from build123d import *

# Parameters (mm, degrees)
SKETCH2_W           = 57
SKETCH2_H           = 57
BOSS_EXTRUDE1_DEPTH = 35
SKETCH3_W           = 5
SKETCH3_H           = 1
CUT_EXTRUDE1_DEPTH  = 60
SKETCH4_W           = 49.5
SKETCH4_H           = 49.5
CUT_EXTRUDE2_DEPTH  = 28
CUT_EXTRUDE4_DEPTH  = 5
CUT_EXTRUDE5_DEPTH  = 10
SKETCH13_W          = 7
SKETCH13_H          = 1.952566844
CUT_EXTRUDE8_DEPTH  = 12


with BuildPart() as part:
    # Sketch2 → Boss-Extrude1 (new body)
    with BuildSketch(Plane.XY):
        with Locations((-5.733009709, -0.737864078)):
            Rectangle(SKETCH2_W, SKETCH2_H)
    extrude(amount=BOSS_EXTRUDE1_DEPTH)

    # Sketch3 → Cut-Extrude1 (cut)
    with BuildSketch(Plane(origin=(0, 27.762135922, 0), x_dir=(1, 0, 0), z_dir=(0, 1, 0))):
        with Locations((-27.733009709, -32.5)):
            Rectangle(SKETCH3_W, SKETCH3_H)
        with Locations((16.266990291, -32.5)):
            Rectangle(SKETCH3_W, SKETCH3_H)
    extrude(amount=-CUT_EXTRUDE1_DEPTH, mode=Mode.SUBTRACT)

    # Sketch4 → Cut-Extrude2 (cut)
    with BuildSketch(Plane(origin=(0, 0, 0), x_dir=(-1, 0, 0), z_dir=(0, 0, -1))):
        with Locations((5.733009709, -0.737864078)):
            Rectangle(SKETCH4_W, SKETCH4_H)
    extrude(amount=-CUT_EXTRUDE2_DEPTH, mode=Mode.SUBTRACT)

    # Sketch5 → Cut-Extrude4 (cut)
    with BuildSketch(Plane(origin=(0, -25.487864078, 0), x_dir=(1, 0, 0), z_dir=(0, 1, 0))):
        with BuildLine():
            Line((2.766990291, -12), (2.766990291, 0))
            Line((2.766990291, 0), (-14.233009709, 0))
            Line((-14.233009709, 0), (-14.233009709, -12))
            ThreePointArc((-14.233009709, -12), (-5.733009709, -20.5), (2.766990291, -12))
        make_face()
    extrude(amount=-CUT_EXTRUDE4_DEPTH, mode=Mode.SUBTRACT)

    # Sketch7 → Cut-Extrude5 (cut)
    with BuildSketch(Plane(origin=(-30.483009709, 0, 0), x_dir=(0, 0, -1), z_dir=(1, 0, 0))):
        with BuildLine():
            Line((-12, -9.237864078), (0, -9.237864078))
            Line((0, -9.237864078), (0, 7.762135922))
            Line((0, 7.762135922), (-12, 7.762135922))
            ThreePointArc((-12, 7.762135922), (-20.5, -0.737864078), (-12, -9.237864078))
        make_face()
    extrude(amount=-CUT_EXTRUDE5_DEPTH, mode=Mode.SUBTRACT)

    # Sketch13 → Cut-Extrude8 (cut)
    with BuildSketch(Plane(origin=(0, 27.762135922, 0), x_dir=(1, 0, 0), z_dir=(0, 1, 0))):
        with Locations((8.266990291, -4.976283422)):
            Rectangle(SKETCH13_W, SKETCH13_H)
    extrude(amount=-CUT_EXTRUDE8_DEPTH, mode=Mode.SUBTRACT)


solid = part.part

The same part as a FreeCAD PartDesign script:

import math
import FreeCAD as App
import Part
import Sketcher


def add_polygon(sketch, points):
    """Adds a closed chain of lines whose ends are joined by coincident constraints."""
    first, n = sketch.GeometryCount, len(points)
    for a, b in zip(points, points[1:] + points[:1]):
        sketch.addGeometry(Part.LineSegment(App.Vector(*a, 0), App.Vector(*b, 0)), False)
    for i in range(n):
        sketch.addConstraint(Sketcher.Constraint("Coincident", first + i, 2, first + (i + 1) % n, 1))

doc = App.newDocument("Part")
params = doc.addObject("Spreadsheet::Sheet", "Params")
for row, (alias, value) in enumerate([
    ("sketch1_width", "57 mm"),
    ("pad1_length", "35 mm"),
    ("sketch2_width", "5 mm"),
    ("sketch2_height", "1 mm"),
    ("pocket1_length", "60 mm"),
    ("sketch3_width", "49.5 mm"),
    ("pocket2_length", "28 mm"),
    ("sketch4_radius", "8.5 mm"),
    ("sketch4_height", "12 mm"),
    ("pocket3_length", "5 mm"),
    ("sketch5_radius", "8.5 mm"),
    ("sketch5_height", "12 mm"),
    ("pocket4_length", "10 mm"),
    ("sketch6_width", "7 mm"),
    ("pocket5_length", "12 mm"),
], start=1):
    params.set(f"A{row}", alias)
    params.set(f"B{row}", "=" + value)
    params.setAlias(f"B{row}", alias)

body = doc.addObject("PartDesign::Body", "Body")

# Sketch on XY plane
sketch1 = body.newObject("Sketcher::SketchObject", "Sketch")
sketch1.AttachmentSupport = (doc.getObject("XY_Plane"), [""])
sketch1.MapMode = "FlatFace"
add_polygon(sketch1, [(-34, 28), (-34, -29), (23, -29), (23, 28)])  # lines 0-3
sketch1.addConstraint([
    Sketcher.Constraint("Vertical", 0),
    Sketcher.Constraint("Horizontal", 1),
    Sketcher.Constraint("Vertical", 2),
    Sketcher.Constraint("Horizontal", 3),
    Sketcher.Constraint("Equal", 3, 0),
    Sketcher.Constraint("DistanceX", 1, 1, 1, 2, 57.0),
    Sketcher.Constraint("DistanceX", 0, 2, -1, 1, 34.23301),
    Sketcher.Constraint("DistanceY", 0, 2, -1, 1, 29.237864),
])
sketch1.setExpression("Constraints[9]", "Params.sketch1_width")
pad1 = body.newObject("PartDesign::Pad", "Pad")
pad1.Profile = sketch1
pad1.setExpression("Length", "Params.pad1_length")

# Sketch on XZ plane
sketch2 = body.newObject("Sketcher::SketchObject", "Sketch001")
sketch2.AttachmentSupport = (doc.getObject("XZ_Plane"), [""])
sketch2.MapMode = "FlatFace"
sketch2.AttachmentOffset = App.Placement(App.Vector(0, 0, -27.762136), App.Rotation())
add_polygon(sketch2, [(-30.2, 32), (-30.2, 33), (-25.2, 33), (-25.2, 32)])  # lines 0-3
add_polygon(sketch2, [(13.8, 32), (13.8, 33), (18.8, 33), (18.8, 32)])  # lines 4-7
sketch2.addConstraint([
    Sketcher.Constraint("Vertical", 0),
    Sketcher.Constraint("Horizontal", 1),
    Sketcher.Constraint("Vertical", 2),
    Sketcher.Constraint("Horizontal", 3),
    Sketcher.Constraint("Vertical", 4),
    Sketcher.Constraint("Horizontal", 5),
    Sketcher.Constraint("Vertical", 6),
    Sketcher.Constraint("Horizontal", 7),
    Sketcher.Constraint("Horizontal", 1, 2, 4, 2),
    Sketcher.Constraint("Horizontal", 3, 2, 6, 2),
    Sketcher.Constraint("Equal", 3, 5),
    Sketcher.Constraint("DistanceX", 1, 1, 1, 2, 5.0),
    Sketcher.Constraint("DistanceY", 0, 1, 0, 2, 1.0),
    Sketcher.Constraint("DistanceY", -1, 1, 0, 2, 33.0),
    Sketcher.Constraint("DistanceX", 1, 2, 4, 2, 39.0),
    Sketcher.Constraint("DistanceX", 0, 2, -1, 1, 30.23301),
])
sketch2.setExpression("Constraints[19]", "Params.sketch2_width")
sketch2.setExpression("Constraints[20]", "Params.sketch2_height")
pocket1 = body.newObject("PartDesign::Pocket", "Pocket")
pocket1.Profile = sketch2
pocket1.setExpression("Length", "Params.pocket1_length")
pocket1.Reversed = True

# Sketch on XY plane
sketch3 = body.newObject("Sketcher::SketchObject", "Sketch002")
sketch3.AttachmentSupport = (doc.getObject("XY_Plane"), [""])
sketch3.MapMode = "FlatFace"
add_polygon(sketch3, [(19, 24), (19, -25), (-30, -25), (-30, 24)])  # lines 0-3
sketch3.addConstraint([
    Sketcher.Constraint("Vertical", 0),
    Sketcher.Constraint("Horizontal", 1),
    Sketcher.Constraint("Vertical", 2),
    Sketcher.Constraint("Horizontal", 3),
    Sketcher.Constraint("Equal", 3, 0),
    Sketcher.Constraint("DistanceX", 1, 2, 1, 1, 49.5),
    Sketcher.Constraint("DistanceX", -1, 1, 0, 2, 19.01699),
    Sketcher.Constraint("DistanceY", 0, 2, -1, 1, 25.487864),
])
sketch3.setExpression("Constraints[9]", "Params.sketch3_width")
pocket2 = body.newObject("PartDesign::Pocket", "Pocket001")
pocket2.Profile = sketch3
pocket2.setExpression("Length", "Params.pocket2_length")
pocket2.Reversed = True

# Sketch on XZ plane
sketch4 = body.newObject("Sketcher::SketchObject", "Sketch003")
sketch4.AttachmentSupport = (doc.getObject("XZ_Plane"), [""])
sketch4.MapMode = "FlatFace"
sketch4.AttachmentOffset = App.Placement(App.Vector(0, 0, 25.487864), App.Rotation())
sketch4.addGeometry([
    Part.LineSegment(App.Vector(3, 12, 0), App.Vector(3, 0, 0)),
    Part.LineSegment(App.Vector(3, 0, 0), App.Vector(-14, 0, 0)),
    Part.LineSegment(App.Vector(-14, 0, 0), App.Vector(-14, 12, 0)),
    Part.ArcOfCircle(Part.Circle(App.Vector(-6, 12, 0), App.Vector(0, 0, 1), 8), math.radians(0), math.radians(180)),
], False)
sketch4.addConstraint([
    Sketcher.Constraint("Coincident", 0, 2, 1, 1),
    Sketcher.Constraint("Coincident", 1, 2, 2, 1),
    Sketcher.Constraint("Tangent", 2, 2, 3, 2),
    Sketcher.Constraint("Tangent", 3, 1, 0, 1),
    Sketcher.Constraint("Vertical", 0),
    Sketcher.Constraint("Horizontal", 1),
    Sketcher.Constraint("Vertical", 2),
    Sketcher.Constraint("PointOnObject", 0, 2, -1),
    Sketcher.Constraint("Radius", 3, 8.5),
    Sketcher.Constraint("DistanceY", 0, 2, 0, 1, 12.0),
    Sketcher.Constraint("DistanceX", 3, 3, -1, 1, 5.73301),
])
sketch4.setExpression("Constraints[8]", "Params.sketch4_radius")
sketch4.setExpression("Constraints[9]", "Params.sketch4_height")
pocket3 = body.newObject("PartDesign::Pocket", "Pocket002")
pocket3.Profile = sketch4
pocket3.setExpression("Length", "Params.pocket3_length")
pocket3.Reversed = True

# Sketch on YZ plane
sketch5 = body.newObject("Sketcher::SketchObject", "Sketch004")
sketch5.AttachmentSupport = (doc.getObject("YZ_Plane"), [""])
sketch5.MapMode = "FlatFace"
sketch5.AttachmentOffset = App.Placement(App.Vector(0, 0, -30.48301), App.Rotation())
sketch5.addGeometry([
    Part.LineSegment(App.Vector(-9, 12, 0), App.Vector(-9, 0, 0)),
    Part.LineSegment(App.Vector(-9, 0, 0), App.Vector(8, 0, 0)),
    Part.LineSegment(App.Vector(8, 0, 0), App.Vector(8, 12, 0)),
    Part.ArcOfCircle(Part.Circle(App.Vector(-1, 12, 0), App.Vector(0, 0, 1), 8), math.radians(0), math.radians(180)),
], False)
sketch5.addConstraint([
    Sketcher.Constraint("Coincident", 0, 2, 1, 1),
    Sketcher.Constraint("Coincident", 1, 2, 2, 1),
    Sketcher.Constraint("Tangent", 2, 2, 3, 1),
    Sketcher.Constraint("Tangent", 3, 2, 0, 1),
    Sketcher.Constraint("Vertical", 0),
    Sketcher.Constraint("Horizontal", 1),
    Sketcher.Constraint("Vertical", 2),
    Sketcher.Constraint("PointOnObject", 0, 2, -1),
    Sketcher.Constraint("Radius", 3, 8.5),
    Sketcher.Constraint("DistanceY", 0, 2, 0, 1, 12.0),
    Sketcher.Constraint("DistanceX", 3, 3, -1, 1, 0.737864),
])
sketch5.setExpression("Constraints[8]", "Params.sketch5_radius")
sketch5.setExpression("Constraints[9]", "Params.sketch5_height")
pocket4 = body.newObject("PartDesign::Pocket", "Pocket003")
pocket4.Profile = sketch5
pocket4.setExpression("Length", "Params.pocket4_length")

# Sketch on XZ plane
sketch6 = body.newObject("Sketcher::SketchObject", "Sketch005")
sketch6.AttachmentSupport = (doc.getObject("XZ_Plane"), [""])
sketch6.MapMode = "FlatFace"
sketch6.AttachmentOffset = App.Placement(App.Vector(0, 0, -27.762136), App.Rotation())
add_polygon(sketch6, [(4.8, 4), (4.8, 6), (11.8, 6), (11.8, 4)])  # lines 0-3
sketch6.addConstraint([
    Sketcher.Constraint("Vertical", 0),
    Sketcher.Constraint("Horizontal", 1),
    Sketcher.Constraint("Vertical", 2),
    Sketcher.Constraint("Horizontal", 3),
    Sketcher.Constraint("DistanceX", 1, 1, 1, 2, 7.0),
    Sketcher.Constraint("DistanceY", -1, 1, 2, 2, 4.0),
    Sketcher.Constraint("DistanceY", 0, 1, 0, 2, 1.952567),
    Sketcher.Constraint("DistanceX", -1, 1, 0, 2, 4.76699),
])
sketch6.setExpression("Constraints[8]", "Params.sketch6_width")
pocket5 = body.newObject("PartDesign::Pocket", "Pocket004")
pocket5.Profile = sketch6
pocket5.setExpression("Length", "Params.pocket5_length")
pocket5.Reversed = True

doc.recompute()
